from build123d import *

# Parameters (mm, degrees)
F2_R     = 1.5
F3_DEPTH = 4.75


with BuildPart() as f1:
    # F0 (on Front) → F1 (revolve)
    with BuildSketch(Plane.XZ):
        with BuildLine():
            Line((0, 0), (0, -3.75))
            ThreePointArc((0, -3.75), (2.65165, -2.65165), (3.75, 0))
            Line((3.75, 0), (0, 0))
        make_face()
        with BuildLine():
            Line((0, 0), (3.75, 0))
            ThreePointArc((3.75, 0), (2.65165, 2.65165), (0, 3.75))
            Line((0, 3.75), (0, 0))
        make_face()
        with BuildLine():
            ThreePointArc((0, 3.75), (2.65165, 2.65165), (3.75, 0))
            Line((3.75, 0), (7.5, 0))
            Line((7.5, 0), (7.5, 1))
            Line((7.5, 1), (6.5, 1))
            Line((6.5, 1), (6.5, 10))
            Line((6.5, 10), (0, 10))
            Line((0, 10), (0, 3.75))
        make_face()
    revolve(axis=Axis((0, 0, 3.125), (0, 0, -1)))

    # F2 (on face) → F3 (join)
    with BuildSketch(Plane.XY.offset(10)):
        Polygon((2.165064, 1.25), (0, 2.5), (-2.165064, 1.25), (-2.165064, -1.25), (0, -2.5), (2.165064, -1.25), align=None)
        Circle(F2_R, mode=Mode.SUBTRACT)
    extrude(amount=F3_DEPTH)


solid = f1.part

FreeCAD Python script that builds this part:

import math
import FreeCAD as App
import Part
import Sketcher

V = App.Vector
Q = App.Units.Quantity

doc = App.newDocument("Part")
body = doc.addObject("PartDesign::Body", "Body")

sketch1 = doc.addObject("Sketcher::SketchObject", "Sketch")
body.addObject(sketch1)
sketch1.AttachmentSupport = (doc.XZ_Plane, [""])
sketch1.MapMode = "FlatFace"
sketch1.addGeometry([
    Part.ArcOfCircle(Part.Circle(V(-0.000001, 0.000001, 0), V(0, 0, 1), 3.750001), math.radians(-89.999978), math.radians(-0.000022)),
    Part.LineSegment(V(3.75, 0, 0), V(7.5, 0, 0)),
    Part.LineSegment(V(7.5, 0, 0), V(7.5, 1, 0)),
    Part.LineSegment(V(7.5, 1, 0), V(6.5, 1, 0)),
    Part.LineSegment(V(6.5, 1, 0), V(6.5, 10, 0)),
    Part.LineSegment(V(6.5, 10, 0), V(0, 10, 0)),
    Part.LineSegment(V(0, 10, 0), V(0, -3.75, 0)),
], False)
sketch1.addConstraint([
    Sketcher.Constraint("Coincident", 0, 2, 1, 1),
    Sketcher.Constraint("Coincident", 1, 2, 2, 1),
    Sketcher.Constraint("Coincident", 2, 2, 3, 1),
    Sketcher.Constraint("Coincident", 3, 2, 4, 1),
    Sketcher.Constraint("Coincident", 4, 2, 5, 1),
    Sketcher.Constraint("Coincident", 5, 2, 6, 1),
    Sketcher.Constraint("Coincident", 6, 2, 0, 1),
    Sketcher.Constraint("Horizontal", 1),
    Sketcher.Constraint("Vertical", 2),
    Sketcher.Constraint("Horizontal", 3),
    Sketcher.Constraint("Vertical", 4),
    Sketcher.Constraint("Horizontal", 5),
    Sketcher.Constraint("Vertical", 6),
    Sketcher.Constraint("Coincident", 0, 3, -1, 1),
    Sketcher.Constraint("PointOnObject", 0, 2, -1),
    Sketcher.Constraint("PointOnObject", 5, 2, -2),
    Sketcher.Constraint("Equal", 3, 2),
    Sketcher.Constraint("DistanceX", 3, 2, 3, 1, Q("1 mm")),
    Sketcher.Constraint("DistanceY", 4, 1, 4, 2, Q("9 mm")),
    Sketcher.Constraint("Radius", 0, Q("3.750001 mm")),
    Sketcher.Constraint("DistanceX", 5, 2, 5, 1, Q("6.5 mm")),
])
revolution = doc.addObject("PartDesign::Revolution", "Revolution")
body.addObject(revolution)
revolution.Profile = sketch1
revolution.ReferenceAxis = (sketch1, ["V_Axis"])
revolution.Angle = 360

sketch2 = doc.addObject("Sketcher::SketchObject", "Sketch001")
body.addObject(sketch2)
sketch2.AttachmentSupport = (doc.XY_Plane, [""])
sketch2.MapMode = "FlatFace"
sketch2.AttachmentOffset = App.Placement(V(0, 0, 10), App.Rotation())
sketch2.addGeometry([
    Part.LineSegment(V(2.165064, 1.25, 0), V(0, 2.5, 0)),
    Part.LineSegment(V(0, 2.5, 0), V(-2.165064, 1.25, 0)),
    Part.LineSegment(V(-2.165064, 1.25, 0), V(-2.165064, -1.25, 0)),
    Part.LineSegment(V(-2.165064, -1.25, 0), V(0, -2.5, 0)),
    Part.LineSegment(V(0, -2.5, 0), V(2.165064, -1.25, 0)),
    Part.LineSegment(V(2.165064, -1.25, 0), V(2.165064, 1.25, 0)),
    Part.Circle(V(0, 0, 0), V(0, 0, 1), 1.5),
], False)
sketch2.addConstraint([
    Sketcher.Constraint("Coincident", 0, 2, 1, 1),
    Sketcher.Constraint("Coincident", 1, 2, 2, 1),
    Sketcher.Constraint("Coincident", 2, 2, 3, 1),
    Sketcher.Constraint("Coincident", 3, 2, 4, 1),
    Sketcher.Constraint("Coincident", 4, 2, 5, 1),
    Sketcher.Constraint("Coincident", 5, 2, 0, 1),
    Sketcher.Constraint("Vertical", 2),
    Sketcher.Constraint("Vertical", 5),
    Sketcher.Constraint("Coincident", 6, 3, -1, 1),
    Sketcher.Constraint("Symmetric", 0, 2, 3, 2, -1, 1),
    Sketcher.Constraint("Symmetric", 1, 2, 4, 2, -1, 1),
    Sketcher.Constraint("PointOnObject", 0, 2, -2),
    Sketcher.Constraint("Parallel", 0, 3),
    Sketcher.Constraint("Horizontal", 2, 2, 4, 2),
    Sketcher.Constraint("Diameter", 6, Q("3 mm")),
    Sketcher.Constraint("Angle", 0, Q("150.000006 deg")),
    Sketcher.Constraint("DistanceY", 2, 2, 2, 1, Q("2.5 mm")),
    Sketcher.Constraint("DistanceY", 3, 2, 0, 2, Q("5 mm")),
])
pad1 = doc.addObject("PartDesign::Pad", "Pad")
body.addObject(pad1)
pad1.Profile = sketch2
pad1.Length = 4.75

doc.recompute()
